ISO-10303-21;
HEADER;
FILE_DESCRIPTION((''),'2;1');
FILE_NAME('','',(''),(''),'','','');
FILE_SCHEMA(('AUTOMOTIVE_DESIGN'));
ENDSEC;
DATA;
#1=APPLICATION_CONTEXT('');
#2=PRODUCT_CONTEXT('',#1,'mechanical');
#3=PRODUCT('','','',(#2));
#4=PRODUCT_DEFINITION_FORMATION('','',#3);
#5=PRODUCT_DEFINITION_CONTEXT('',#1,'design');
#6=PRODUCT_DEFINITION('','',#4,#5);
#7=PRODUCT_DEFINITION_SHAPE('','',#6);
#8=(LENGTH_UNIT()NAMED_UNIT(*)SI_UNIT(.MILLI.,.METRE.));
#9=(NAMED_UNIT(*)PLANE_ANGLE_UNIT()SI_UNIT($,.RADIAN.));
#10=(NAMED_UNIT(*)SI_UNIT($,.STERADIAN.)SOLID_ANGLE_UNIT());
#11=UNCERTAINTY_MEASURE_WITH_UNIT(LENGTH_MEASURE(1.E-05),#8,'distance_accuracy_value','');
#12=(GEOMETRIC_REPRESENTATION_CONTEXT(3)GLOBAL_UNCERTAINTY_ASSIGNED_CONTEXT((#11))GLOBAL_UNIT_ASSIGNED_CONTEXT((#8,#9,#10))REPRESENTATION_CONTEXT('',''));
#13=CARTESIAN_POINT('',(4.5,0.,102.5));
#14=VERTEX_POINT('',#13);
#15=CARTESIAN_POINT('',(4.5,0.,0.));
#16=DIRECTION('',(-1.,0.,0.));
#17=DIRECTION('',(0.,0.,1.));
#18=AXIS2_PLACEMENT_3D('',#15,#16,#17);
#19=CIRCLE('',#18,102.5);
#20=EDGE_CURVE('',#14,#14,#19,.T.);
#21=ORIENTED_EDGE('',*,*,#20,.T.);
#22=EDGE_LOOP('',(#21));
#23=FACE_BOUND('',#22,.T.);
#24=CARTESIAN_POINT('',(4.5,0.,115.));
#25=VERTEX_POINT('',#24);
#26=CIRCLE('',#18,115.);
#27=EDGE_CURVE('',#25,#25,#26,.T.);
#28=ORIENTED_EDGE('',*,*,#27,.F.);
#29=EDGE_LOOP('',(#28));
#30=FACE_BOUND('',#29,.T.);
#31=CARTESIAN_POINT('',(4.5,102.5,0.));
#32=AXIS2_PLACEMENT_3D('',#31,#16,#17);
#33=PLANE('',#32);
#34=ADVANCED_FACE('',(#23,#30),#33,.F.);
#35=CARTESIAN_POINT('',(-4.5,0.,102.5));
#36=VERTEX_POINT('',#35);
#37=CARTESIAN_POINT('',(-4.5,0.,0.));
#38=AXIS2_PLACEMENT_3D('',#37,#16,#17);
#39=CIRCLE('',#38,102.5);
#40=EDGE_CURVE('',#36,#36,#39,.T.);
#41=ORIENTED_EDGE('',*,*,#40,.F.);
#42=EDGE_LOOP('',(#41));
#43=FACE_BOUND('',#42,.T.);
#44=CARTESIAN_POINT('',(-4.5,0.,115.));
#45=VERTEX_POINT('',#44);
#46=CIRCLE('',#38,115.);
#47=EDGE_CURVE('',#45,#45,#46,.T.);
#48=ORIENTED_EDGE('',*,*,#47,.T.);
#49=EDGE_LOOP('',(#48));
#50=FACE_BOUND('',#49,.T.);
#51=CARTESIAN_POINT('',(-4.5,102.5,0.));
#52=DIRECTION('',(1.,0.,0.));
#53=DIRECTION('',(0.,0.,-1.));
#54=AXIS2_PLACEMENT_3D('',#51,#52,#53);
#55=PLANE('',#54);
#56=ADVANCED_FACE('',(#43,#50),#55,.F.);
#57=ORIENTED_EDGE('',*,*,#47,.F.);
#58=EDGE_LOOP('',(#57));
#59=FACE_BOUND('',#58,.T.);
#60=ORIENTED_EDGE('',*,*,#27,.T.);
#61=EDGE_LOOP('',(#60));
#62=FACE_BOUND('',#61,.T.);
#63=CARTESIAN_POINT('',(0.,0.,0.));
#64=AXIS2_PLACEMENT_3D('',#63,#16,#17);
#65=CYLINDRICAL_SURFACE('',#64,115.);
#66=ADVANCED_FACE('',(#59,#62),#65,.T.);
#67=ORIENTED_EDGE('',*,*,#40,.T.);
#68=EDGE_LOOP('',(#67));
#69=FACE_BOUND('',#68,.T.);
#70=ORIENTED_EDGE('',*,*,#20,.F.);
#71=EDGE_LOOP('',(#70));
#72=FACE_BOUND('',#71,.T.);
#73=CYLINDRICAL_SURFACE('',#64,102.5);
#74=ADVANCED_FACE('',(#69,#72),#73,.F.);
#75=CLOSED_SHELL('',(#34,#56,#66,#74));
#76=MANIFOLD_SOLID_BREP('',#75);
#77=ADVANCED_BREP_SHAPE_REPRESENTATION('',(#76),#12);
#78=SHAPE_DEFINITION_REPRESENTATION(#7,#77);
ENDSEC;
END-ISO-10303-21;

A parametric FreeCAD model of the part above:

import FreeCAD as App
import Part
import Sketcher
Q = App.Units.Quantity


def add_polygon(sketch, points):
    """Adds a closed chain of lines whose ends are joined by coincident constraints."""
    first, n = sketch.GeometryCount, len(points)
    for a, b in zip(points, points[1:] + points[:1]):
        sketch.addGeometry(Part.LineSegment(App.Vector(*a, 0), App.Vector(*b, 0)), False)
    for i in range(n):
        sketch.addConstraint(Sketcher.Constraint("Coincident", first + i, 2, first + (i + 1) % n, 1))

doc = App.newDocument("Part")
body = doc.addObject("PartDesign::Body", "Body")

# Sketch on XY plane
sketch1 = body.newObject("Sketcher::SketchObject", "Sketch")
sketch1.AttachmentSupport = (doc.getObject("XY_Plane"), [""])
sketch1.MapMode = "FlatFace"
add_polygon(sketch1, [(-4, 115), (-4, 102), (4, 102), (4, 115)])  # lines 0-3
sketch1.addConstraint([
    Sketcher.Constraint("Vertical", 0),
    Sketcher.Constraint("Horizontal", 1),
    Sketcher.Constraint("Vertical", 2),
    Sketcher.Constraint("Horizontal", 3),
    Sketcher.Constraint("DistanceX", 1, 1, 1, 2, Q("9 mm")),
    Sketcher.Constraint("DistanceY", 0, 2, 0, 1, Q("12.5 mm")),
    Sketcher.Constraint("DistanceY", -1, 1, 2, 2, Q("115 mm")),
    Sketcher.Constraint("DistanceX", 0, 2, -1, 1, Q("4.5 mm")),
])
revolution = body.newObject("PartDesign::Revolution", "Revolution")
revolution.Profile = sketch1
revolution.ReferenceAxis = (sketch1, ["H_Axis"])
revolution.Angle = 360

doc.recompute()
